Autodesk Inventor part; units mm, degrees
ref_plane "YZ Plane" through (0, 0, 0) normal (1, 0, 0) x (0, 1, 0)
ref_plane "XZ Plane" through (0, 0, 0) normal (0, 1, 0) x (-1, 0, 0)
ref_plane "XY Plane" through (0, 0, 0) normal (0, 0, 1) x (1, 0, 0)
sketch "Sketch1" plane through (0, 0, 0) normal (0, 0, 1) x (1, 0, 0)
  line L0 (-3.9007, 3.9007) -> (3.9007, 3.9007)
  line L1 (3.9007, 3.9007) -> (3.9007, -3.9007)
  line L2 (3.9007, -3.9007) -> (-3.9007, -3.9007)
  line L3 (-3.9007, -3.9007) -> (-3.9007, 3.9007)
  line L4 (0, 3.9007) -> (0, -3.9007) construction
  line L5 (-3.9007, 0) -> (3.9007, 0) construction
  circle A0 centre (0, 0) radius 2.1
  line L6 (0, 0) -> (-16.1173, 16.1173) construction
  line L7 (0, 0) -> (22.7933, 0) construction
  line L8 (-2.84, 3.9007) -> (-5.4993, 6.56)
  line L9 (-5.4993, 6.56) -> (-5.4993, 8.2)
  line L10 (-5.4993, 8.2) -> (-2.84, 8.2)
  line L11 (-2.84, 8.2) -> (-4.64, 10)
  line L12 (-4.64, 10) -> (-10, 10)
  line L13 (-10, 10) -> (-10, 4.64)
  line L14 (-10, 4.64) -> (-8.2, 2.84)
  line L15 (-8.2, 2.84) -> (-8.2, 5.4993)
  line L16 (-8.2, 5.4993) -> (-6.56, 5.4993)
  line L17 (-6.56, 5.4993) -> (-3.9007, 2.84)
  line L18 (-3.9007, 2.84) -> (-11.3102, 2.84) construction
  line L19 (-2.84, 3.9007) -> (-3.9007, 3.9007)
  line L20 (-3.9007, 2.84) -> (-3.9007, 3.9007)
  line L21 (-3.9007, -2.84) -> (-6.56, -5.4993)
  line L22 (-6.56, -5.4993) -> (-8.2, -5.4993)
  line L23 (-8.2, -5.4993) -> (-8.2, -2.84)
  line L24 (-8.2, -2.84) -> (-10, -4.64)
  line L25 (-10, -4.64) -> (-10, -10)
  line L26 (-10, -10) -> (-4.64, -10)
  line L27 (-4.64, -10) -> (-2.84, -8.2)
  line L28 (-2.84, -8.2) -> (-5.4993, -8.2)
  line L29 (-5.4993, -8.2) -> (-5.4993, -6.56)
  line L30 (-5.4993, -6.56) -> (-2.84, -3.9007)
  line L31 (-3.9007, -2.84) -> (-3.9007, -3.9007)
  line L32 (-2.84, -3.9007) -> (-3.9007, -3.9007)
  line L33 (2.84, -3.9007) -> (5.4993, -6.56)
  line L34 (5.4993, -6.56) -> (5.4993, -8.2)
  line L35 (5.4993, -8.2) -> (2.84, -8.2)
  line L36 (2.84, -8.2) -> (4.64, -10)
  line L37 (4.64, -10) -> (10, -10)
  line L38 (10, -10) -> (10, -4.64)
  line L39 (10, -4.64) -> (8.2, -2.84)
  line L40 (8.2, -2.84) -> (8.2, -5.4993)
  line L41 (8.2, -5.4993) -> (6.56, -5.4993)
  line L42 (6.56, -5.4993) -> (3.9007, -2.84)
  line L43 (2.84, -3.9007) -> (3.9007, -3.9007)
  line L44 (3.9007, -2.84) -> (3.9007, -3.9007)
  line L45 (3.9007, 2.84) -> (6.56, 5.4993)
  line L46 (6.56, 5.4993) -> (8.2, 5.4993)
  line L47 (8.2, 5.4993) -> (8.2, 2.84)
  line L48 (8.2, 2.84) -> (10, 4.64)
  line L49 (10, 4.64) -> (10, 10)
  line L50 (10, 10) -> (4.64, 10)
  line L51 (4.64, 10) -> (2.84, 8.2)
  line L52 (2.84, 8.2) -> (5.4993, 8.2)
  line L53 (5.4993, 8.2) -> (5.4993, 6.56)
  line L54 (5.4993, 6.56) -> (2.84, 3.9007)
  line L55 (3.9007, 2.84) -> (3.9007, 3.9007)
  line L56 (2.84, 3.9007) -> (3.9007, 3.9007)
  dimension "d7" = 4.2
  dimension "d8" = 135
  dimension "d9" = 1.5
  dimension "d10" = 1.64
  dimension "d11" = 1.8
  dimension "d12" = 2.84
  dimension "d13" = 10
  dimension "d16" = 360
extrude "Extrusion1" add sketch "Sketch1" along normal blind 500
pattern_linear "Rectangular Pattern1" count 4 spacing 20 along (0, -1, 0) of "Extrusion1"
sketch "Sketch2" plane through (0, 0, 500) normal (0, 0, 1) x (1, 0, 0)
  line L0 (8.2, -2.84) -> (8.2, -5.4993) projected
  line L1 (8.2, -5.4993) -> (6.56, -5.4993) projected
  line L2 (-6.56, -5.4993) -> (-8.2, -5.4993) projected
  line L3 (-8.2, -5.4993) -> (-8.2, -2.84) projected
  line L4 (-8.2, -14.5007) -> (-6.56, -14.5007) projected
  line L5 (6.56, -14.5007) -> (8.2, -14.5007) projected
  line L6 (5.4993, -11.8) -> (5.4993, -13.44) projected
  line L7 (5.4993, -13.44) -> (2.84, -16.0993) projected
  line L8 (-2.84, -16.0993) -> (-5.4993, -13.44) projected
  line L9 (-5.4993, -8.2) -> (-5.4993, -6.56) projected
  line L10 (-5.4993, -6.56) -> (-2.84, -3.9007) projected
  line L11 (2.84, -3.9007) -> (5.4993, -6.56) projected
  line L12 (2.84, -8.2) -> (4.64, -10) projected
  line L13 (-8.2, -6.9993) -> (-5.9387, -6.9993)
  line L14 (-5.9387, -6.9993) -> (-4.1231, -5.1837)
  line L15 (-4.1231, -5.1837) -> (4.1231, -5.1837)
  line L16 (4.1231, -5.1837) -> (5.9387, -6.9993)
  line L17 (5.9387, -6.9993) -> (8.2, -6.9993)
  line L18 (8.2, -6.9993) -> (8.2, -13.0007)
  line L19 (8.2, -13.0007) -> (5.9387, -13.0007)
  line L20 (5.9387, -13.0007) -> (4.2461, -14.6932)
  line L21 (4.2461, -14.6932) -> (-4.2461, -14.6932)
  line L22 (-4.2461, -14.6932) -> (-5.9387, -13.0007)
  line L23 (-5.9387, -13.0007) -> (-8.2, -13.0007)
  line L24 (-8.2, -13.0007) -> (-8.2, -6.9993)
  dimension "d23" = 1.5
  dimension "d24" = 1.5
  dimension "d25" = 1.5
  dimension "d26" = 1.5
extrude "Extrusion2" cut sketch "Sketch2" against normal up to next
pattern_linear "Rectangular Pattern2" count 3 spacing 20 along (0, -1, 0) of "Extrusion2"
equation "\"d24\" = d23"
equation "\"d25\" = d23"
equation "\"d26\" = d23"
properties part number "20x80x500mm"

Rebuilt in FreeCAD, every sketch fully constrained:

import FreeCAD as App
import Part
import Sketcher
from FreeCAD import Vector


def add_polygon(sketch, points):
    """Adds a closed chain of lines whose ends are joined by coincident constraints."""
    first, n = sketch.GeometryCount, len(points)
    for a, b in zip(points, points[1:] + points[:1]):
        sketch.addGeometry(Part.LineSegment(App.Vector(*a, 0), App.Vector(*b, 0)), False)
    for i in range(n):
        sketch.addConstraint(Sketcher.Constraint("Coincident", first + i, 2, first + (i + 1) % n, 1))

doc = App.newDocument("Part")
params = doc.addObject("Spreadsheet::Sheet", "Params")
for row, (alias, value) in enumerate([
    ("sketch1_diameter", "4.2 mm"),
    ("sketch1_width", "1.64 mm"),
    ("pad1_length", "500 mm"),
    ("linearpattern_pitch", "20 mm"),
    ("pocket1_length", "500 mm"),
    ("linearpattern2_pitch", "20 mm"),
], start=1):
    params.set(f"A{row}", alias)
    params.set(f"B{row}", "=" + value)
    params.setAlias(f"B{row}", alias)

body = doc.addObject("PartDesign::Body", "Body")

# Sketch on XY plane
sketch1 = body.newObject("Sketcher::SketchObject", "Sketch")
sketch1.AttachmentSupport = (doc.getObject("XY_Plane"), [""])
sketch1.MapMode = "FlatFace"
add_polygon(sketch1, [(-6.56, 5.4993), (-3.9007, 2.84), (-3.9007, -2.84), (-6.56, -5.4993), (-8.2, -5.4993), (-8.2, -2.84), (-10, -4.64), (-10, -10), (-4.64, -10), (-2.84, -8.2), (-5.4993, -8.2), (-5.4993, -6.56), (-2.84, -3.9007), (2.84, -3.9007), (5.4993, -6.56), (5.4993, -8.2), (2.84, -8.2), (4.64, -10), (10, -10), (10, -4.64), (8.2, -2.84), (8.2, -5.4993), (6.56, -5.4993), (3.9007, -2.84), (3.9007, 2.84), (6.56, 5.4993), (8.2, 5.4993), (8.2, 2.84), (10, 4.64), (10, 10), (4.64, 10), (2.84, 8.2), (5.4993, 8.2), (5.4993, 6.56), (2.84, 3.9007), (-2.84, 3.9007), (-5.4993, 6.56), (-5.4993, 8.2), (-2.84, 8.2), (-4.64, 10), (-10, 10), (-10, 4.64), (-8.2, 2.84), (-8.2, 5.4993)])  # lines 0-43
sketch1.addGeometry(Part.Circle(Vector(0, 0, 0), Vector(0, 0, 1), 2.1), False)  # 44
sketch1.addConstraint([
    Sketcher.Constraint("Vertical", 1),
    Sketcher.Constraint("Horizontal", 3),
    Sketcher.Constraint("Vertical", 4),
    Sketcher.Constraint("Vertical", 6),
    Sketcher.Constraint("Horizontal", 7),
    Sketcher.Constraint("Horizontal", 9),
    Sketcher.Constraint("Vertical", 10),
    Sketcher.Constraint("Horizontal", 12),
    Sketcher.Constraint("Vertical", 14),
    Sketcher.Constraint("Horizontal", 15),
    Sketcher.Constraint("Horizontal", 17),
    Sketcher.Constraint("Vertical", 18),
    Sketcher.Constraint("Vertical", 20),
    Sketcher.Constraint("Horizontal", 21),
    Sketcher.Constraint("Vertical", 23),
    Sketcher.Constraint("Horizontal", 25),
    Sketcher.Constraint("Vertical", 26),
    Sketcher.Constraint("Vertical", 28),
    Sketcher.Constraint("Horizontal", 29),
    Sketcher.Constraint("Horizontal", 31),
    Sketcher.Constraint("Vertical", 32),
    Sketcher.Constraint("Horizontal", 34),
    Sketcher.Constraint("Vertical", 36),
    Sketcher.Constraint("Horizontal", 37),
    Sketcher.Constraint("Horizontal", 39),
    Sketcher.Constraint("Vertical", 40),
    Sketcher.Constraint("Vertical", 42),
    Sketcher.Constraint("Horizontal", 43),
    Sketcher.Constraint("Coincident", 44, 3, -1, 1),
    Sketcher.Constraint("Symmetric", 0, 2, 22, 2, -1, 1),
    Sketcher.Constraint("Symmetric", 2, 2, 24, 2, -1, 1),
    Sketcher.Constraint("Symmetric", 4, 2, 26, 2, -1, 1),
    Sketcher.Constraint("Symmetric", 5, 2, 27, 2, -1, 1),
    Sketcher.Constraint("Symmetric", 7, 2, 29, 2, -1, 1),
    Sketcher.Constraint("Symmetric", 8, 2, 30, 2, -1, 1),
    Sketcher.Constraint("Symmetric", 10, 2, 32, 2, -1, 1),
    Sketcher.Constraint("Symmetric", 11, 2, 33, 2, -1, 1),
    Sketcher.Constraint("Symmetric", 13, 2, 35, 2, -1, 1),
    Sketcher.Constraint("Symmetric", 15, 2, 37, 2, -1, 1),
    Sketcher.Constraint("Symmetric", 16, 2, 38, 2, -1, 1),
    Sketcher.Constraint("Symmetric", 18, 2, 40, 2, -1, 1),
    Sketcher.Constraint("Symmetric", 19, 2, 41, 2, -1, 1),
    Sketcher.Constraint("Symmetric", 21, 2, 43, 2, -1, 1),
    Sketcher.Constraint("Symmetric", 10, 2, 13, 2, -2),
    Sketcher.Constraint("Symmetric", 8, 2, 15, 2, -2),
    Sketcher.Constraint("Symmetric", 7, 2, 16, 2, -2),
    Sketcher.Constraint("Symmetric", 5, 2, 18, 2, -2),
    Sketcher.Constraint("Symmetric", 4, 2, 19, 2, -2),
    Sketcher.Constraint("Symmetric", 2, 2, 21, 2, -2),
    Sketcher.Constraint("Perpendicular", 0, 2),
    Sketcher.Constraint("Parallel", 2, 5),
    Sketcher.Constraint("Parallel", 5, 8),
    Sketcher.Constraint("Parallel", 8, 11),
    Sketcher.Constraint("Perpendicular", 11, 13),
    Sketcher.Constraint("Parallel", 13, 16),
    Sketcher.Constraint("Perpendicular", 22, 24),
    Sketcher.Constraint("Perpendicular", 33, 35),
    Sketcher.Constraint("Horizontal", 1, 2, 4, 2),
    Sketcher.Constraint("Vertical", 8, 2, 11, 2),
    Sketcher.Constraint("Equal", 34, 1),
    Sketcher.Constraint("Equal", 37, 4),
    Sketcher.Constraint("Equal", 39, 6),
    Sketcher.Constraint("Equal", 43, 10),
    Sketcher.Constraint("Equal", 5, 8),
    Sketcher.Constraint("Diameter", 44, 4.2),
    Sketcher.Constraint("DistanceX", 5, 2, -1, 1, 10.0),
    Sketcher.Constraint("DistanceX", 3, 2, 3, 1, 1.64),
    Sketcher.Constraint("DistanceX", 5, 2, 3, 2, 1.8),
    Sketcher.Constraint("DistanceY", -1, 1, 0, 2, 2.84),
    Sketcher.Constraint("DistanceX", 9, 2, 9, 1, 2.6593),
])
sketch1.setExpression("Constraints[108]", "Params.sketch1_diameter")
sketch1.setExpression("Constraints[110]", "Params.sketch1_width")
pad1 = body.newObject("PartDesign::Pad", "Pad")
pad1.Profile = sketch1
pad1.setExpression("Length", "Params.pad1_length")
doc.recompute()

linearpattern = body.newObject("PartDesign::LinearPattern", "LinearPattern")
linearpattern.Originals = [pad1]
linearpattern.Direction = (doc.getObject("Y_Axis"), [""])
linearpattern.Mode = "offset"
linearpattern.setExpression("Offset", "Params.linearpattern_pitch")
linearpattern.Occurrences = 4
linearpattern.Reversed = True
body.Tip = linearpattern

# Sketch on XY plane
sketch2 = body.newObject("Sketcher::SketchObject", "Sketch001")
sketch2.AttachmentSupport = (doc.getObject("XY_Plane"), [""])
sketch2.MapMode = "FlatFace"
sketch2.AttachmentOffset = App.Placement(Vector(0, 0, 500), App.Rotation())
add_polygon(sketch2, [(4.2461, -14.6932), (5.499337, -13.440037), (5.9387, -13.0007), (8.2, -13.0007), (8.2, -6.9993), (5.9387, -6.9993), (5.4993, -6.56), (4.1231, -5.1837), (-4.12305, -5.18375), (-5.49935, -6.55995), (-5.9387, -6.9993), (-8.2, -6.9993), (-8.2, -13.0007), (-5.9387, -13.0007), (-5.4993, -13.44), (-4.2461, -14.6932)])  # lines 0-15
sketch2.addConstraint([
    Sketcher.Constraint("Horizontal", 2),
    Sketcher.Constraint("Vertical", 3),
    Sketcher.Constraint("Horizontal", 4),
    Sketcher.Constraint("Horizontal", 7),
    Sketcher.Constraint("Horizontal", 10),
    Sketcher.Constraint("Vertical", 11),
    Sketcher.Constraint("Horizontal", 12),
    Sketcher.Constraint("Horizontal", 15),
    Sketcher.Constraint("Symmetric", 5, 2, 8, 2, -2),
    Sketcher.Constraint("Symmetric", 4, 2, 9, 2, -2),
    Sketcher.Constraint("Symmetric", 2, 2, 11, 2, -2),
    Sketcher.Constraint("Symmetric", 0, 2, 13, 2, -2),
    Sketcher.Constraint("Parallel", 0, 1),
    Sketcher.Constraint("Perpendicular", 1, 5),
    Sketcher.Constraint("Parallel", 5, 6),
    Sketcher.Constraint("Perpendicular", 6, 8),
    Sketcher.Constraint("Parallel", 8, 9),
    Sketcher.Constraint("Perpendicular", 9, 13),
    Sketcher.Constraint("Parallel", 13, 14),
    Sketcher.Constraint("Vertical", 1, 2, 4, 2),
    Sketcher.Constraint("Vertical", 0, 2, 5, 2),
    Sketcher.Constraint("DistanceX", -1, 1, 2, 2, 8.2),
    Sketcher.Constraint("DistanceY", 0, 2, -1, 1, 13.44),
    Sketcher.Constraint("DistanceY", 5, 2, -1, 1, 6.56),
    Sketcher.Constraint("DistanceX", 2, 1, 2, 2, 2.2613),
    Sketcher.Constraint("DistanceX", 7, 2, 7, 1, 8.2462),
    Sketcher.Constraint("DistanceX", 15, 1, 15, 2, 8.4922),
    Sketcher.Constraint("DistanceY", 3, 1, 3, 2, 6.0014),
])
pocket1 = body.newObject("PartDesign::Pocket", "Pocket")
pocket1.Profile = sketch2
pocket1.setExpression("Length", "Params.pocket1_length")
doc.recompute()

linearpattern2 = body.newObject("PartDesign::LinearPattern", "LinearPattern001")
linearpattern2.Originals = [pocket1]
linearpattern2.Direction = (doc.getObject("Y_Axis"), [""])
linearpattern2.Mode = "offset"
linearpattern2.setExpression("Offset", "Params.linearpattern2_pitch")
linearpattern2.Occurrences = 3
linearpattern2.Reversed = True
body.Tip = linearpattern2

doc.recompute()
